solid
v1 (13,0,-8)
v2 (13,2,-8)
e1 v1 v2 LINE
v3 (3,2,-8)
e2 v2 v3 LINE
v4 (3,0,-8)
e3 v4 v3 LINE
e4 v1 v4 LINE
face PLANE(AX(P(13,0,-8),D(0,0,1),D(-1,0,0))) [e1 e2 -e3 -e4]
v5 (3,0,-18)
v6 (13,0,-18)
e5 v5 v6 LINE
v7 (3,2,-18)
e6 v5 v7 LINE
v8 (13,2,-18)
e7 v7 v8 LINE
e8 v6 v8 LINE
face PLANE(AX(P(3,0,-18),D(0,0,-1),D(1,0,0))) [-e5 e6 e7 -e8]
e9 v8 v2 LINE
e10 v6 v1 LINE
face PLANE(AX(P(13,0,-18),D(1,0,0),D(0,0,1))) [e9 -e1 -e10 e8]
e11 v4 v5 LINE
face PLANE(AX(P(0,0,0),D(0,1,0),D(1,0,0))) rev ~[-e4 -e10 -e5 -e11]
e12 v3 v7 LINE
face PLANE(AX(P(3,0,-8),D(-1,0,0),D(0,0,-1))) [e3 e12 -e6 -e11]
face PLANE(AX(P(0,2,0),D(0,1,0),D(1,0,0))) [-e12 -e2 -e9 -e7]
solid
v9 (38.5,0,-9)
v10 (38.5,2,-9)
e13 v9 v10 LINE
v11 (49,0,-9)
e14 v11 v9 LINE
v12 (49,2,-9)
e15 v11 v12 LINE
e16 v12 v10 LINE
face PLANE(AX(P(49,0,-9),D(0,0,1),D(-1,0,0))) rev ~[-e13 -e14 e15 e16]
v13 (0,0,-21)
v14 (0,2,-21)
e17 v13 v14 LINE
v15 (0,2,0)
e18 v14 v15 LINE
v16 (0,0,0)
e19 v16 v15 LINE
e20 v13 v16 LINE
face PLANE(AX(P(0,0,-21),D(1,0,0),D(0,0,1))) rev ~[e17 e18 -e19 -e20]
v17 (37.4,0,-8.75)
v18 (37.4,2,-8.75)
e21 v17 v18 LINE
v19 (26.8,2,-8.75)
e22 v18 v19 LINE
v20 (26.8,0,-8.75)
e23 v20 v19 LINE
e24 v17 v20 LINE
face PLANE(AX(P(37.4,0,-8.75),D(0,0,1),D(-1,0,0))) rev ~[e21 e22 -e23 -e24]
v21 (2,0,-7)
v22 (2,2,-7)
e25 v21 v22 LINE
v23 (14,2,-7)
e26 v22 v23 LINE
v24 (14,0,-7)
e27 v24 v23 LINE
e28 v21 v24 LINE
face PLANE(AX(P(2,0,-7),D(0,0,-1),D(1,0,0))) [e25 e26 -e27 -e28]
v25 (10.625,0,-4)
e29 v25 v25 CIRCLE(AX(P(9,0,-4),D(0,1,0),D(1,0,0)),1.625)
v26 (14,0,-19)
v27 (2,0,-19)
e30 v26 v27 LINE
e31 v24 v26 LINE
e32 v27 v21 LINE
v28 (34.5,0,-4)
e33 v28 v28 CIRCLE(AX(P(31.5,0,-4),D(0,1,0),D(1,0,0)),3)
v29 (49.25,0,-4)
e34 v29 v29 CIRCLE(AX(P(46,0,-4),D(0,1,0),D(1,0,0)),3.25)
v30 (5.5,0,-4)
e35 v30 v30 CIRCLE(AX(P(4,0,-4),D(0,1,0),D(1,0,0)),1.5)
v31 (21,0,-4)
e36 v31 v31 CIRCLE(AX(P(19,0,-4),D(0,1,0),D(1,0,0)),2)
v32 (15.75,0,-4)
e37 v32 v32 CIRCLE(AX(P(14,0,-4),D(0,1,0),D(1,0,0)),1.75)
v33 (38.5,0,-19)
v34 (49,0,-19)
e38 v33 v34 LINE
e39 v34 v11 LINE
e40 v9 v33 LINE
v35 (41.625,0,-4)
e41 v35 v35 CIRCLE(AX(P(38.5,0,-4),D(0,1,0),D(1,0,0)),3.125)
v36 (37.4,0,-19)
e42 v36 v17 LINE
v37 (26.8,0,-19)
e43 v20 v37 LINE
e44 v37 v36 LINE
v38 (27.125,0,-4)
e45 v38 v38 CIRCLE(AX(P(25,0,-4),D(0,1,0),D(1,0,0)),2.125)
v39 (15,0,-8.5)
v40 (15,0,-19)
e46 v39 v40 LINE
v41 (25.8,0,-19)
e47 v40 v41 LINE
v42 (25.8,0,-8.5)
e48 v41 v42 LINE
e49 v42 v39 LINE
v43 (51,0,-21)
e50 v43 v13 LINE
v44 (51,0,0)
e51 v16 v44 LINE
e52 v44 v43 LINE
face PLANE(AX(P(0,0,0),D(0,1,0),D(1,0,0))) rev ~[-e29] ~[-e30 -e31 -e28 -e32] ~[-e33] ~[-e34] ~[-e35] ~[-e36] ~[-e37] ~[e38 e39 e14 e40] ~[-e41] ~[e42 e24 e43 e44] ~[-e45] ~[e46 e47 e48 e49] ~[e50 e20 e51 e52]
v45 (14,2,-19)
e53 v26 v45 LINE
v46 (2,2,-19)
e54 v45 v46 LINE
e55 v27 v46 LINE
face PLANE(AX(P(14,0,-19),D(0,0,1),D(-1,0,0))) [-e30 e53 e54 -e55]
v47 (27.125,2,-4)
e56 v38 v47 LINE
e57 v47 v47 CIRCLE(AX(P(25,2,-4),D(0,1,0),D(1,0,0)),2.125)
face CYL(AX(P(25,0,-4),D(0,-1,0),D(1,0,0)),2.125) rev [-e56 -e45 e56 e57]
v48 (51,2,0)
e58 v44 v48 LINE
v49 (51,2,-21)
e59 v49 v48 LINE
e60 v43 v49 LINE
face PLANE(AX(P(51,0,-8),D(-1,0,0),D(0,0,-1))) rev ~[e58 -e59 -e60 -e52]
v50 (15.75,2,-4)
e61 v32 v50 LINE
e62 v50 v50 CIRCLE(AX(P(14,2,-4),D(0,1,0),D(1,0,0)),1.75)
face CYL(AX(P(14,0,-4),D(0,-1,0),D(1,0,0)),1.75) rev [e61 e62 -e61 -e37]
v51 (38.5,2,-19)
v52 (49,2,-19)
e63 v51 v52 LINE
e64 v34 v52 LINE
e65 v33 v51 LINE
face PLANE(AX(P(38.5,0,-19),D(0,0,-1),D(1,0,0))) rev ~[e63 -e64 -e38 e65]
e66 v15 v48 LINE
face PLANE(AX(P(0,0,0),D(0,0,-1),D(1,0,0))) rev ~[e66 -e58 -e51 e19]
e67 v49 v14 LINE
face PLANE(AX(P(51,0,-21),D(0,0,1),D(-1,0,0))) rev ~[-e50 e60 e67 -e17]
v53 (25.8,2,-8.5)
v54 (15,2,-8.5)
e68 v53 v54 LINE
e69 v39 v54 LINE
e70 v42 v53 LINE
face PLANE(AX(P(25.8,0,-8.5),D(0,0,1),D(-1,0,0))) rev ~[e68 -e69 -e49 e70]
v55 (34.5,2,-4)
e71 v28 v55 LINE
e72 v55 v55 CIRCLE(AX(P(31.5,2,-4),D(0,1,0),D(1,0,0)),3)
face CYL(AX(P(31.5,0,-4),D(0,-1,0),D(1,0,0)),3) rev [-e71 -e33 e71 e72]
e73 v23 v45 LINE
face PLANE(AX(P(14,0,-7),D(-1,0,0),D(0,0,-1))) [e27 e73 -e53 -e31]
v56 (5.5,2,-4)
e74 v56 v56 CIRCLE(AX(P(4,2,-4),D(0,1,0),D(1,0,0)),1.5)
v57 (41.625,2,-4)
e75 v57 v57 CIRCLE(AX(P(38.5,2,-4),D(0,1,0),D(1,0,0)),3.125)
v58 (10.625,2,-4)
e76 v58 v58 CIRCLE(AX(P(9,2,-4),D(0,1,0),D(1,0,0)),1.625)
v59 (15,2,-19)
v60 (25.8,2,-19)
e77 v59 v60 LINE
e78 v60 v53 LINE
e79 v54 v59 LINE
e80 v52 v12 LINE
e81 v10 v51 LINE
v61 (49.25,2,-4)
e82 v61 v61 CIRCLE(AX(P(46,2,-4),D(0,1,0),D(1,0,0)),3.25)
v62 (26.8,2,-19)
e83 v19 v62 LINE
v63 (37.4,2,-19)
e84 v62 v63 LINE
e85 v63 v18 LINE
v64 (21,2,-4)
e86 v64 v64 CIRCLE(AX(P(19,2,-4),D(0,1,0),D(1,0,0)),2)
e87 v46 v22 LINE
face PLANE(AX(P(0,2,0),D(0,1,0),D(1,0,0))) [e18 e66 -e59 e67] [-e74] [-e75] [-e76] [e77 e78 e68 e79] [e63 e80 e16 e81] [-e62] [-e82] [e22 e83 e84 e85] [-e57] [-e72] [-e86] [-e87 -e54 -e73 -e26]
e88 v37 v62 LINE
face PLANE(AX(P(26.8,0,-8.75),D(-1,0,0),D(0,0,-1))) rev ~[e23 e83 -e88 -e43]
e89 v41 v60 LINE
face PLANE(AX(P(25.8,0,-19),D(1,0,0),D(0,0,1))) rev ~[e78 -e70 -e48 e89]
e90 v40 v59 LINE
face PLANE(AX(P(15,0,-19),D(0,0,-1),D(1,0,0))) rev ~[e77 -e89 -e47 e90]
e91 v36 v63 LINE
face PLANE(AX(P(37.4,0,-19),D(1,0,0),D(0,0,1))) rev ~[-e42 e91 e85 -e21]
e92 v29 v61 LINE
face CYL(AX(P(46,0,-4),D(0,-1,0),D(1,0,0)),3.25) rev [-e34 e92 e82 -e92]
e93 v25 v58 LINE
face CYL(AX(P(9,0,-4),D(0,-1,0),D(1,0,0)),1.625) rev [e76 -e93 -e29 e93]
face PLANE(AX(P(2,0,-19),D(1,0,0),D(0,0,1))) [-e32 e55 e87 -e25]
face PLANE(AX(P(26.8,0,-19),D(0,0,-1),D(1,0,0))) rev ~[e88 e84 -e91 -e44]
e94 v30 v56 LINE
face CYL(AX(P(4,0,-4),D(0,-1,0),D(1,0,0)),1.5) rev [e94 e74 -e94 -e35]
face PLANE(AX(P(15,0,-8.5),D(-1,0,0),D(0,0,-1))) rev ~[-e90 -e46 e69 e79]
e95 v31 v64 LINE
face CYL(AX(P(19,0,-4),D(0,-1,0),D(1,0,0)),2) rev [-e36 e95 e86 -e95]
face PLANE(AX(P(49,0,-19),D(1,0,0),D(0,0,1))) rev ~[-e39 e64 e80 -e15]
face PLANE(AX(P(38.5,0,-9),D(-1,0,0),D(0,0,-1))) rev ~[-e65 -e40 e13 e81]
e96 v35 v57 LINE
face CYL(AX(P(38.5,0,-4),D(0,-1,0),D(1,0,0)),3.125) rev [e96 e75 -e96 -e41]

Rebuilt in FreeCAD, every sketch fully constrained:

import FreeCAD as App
import Part
import Sketcher

V = App.Vector
Q = App.Units.Quantity


def add_polygon(sketch, points):
    """Adds a closed chain of lines whose ends are joined by coincident constraints."""
    first, n = sketch.GeometryCount, len(points)
    for a, b in zip(points, points[1:] + points[:1]):
        sketch.addGeometry(Part.LineSegment(App.Vector(*a, 0), App.Vector(*b, 0)), False)
    for i in range(n):
        sketch.addConstraint(Sketcher.Constraint("Coincident", first + i, 2, first + (i + 1) % n, 1))

doc = App.newDocument("Part")
body = doc.addObject("PartDesign::Body", "Body")
body.AllowCompound = True

# Sketch on XZ plane
sketch1 = body.newObject("Sketcher::SketchObject", "Sketch")
sketch1.AttachmentSupport = (doc.getObject("XZ_Plane"), [""])
sketch1.MapMode = "FlatFace"
add_polygon(sketch1, [(51, 0), (51, -21), (0, -21), (0, 0)])  # lines 0-3
sketch1.addGeometry(Part.Circle(V(4, -4, 0), V(0, 0, 1), 1.5), False)  # 4
sketch1.addGeometry(Part.Circle(V(9, -4, 0), V(0, 0, 1), 1.6), False)  # 5
sketch1.addGeometry(Part.Circle(V(14, -4, 0), V(0, 0, 1), 1.8), False)  # 6
sketch1.addGeometry(Part.Circle(V(19, -4, 0), V(0, 0, 1), 2), False)  # 7
sketch1.addGeometry(Part.Circle(V(25, -4, 0), V(0, 0, 1), 2.1), False)  # 8
sketch1.addGeometry(Part.Circle(V(31.5, -4, 0), V(0, 0, 1), 3), False)  # 9
sketch1.addGeometry(Part.Circle(V(38.5, -4, 0), V(0, 0, 1), 3.1), False)  # 10
sketch1.addGeometry(Part.Circle(V(46, -4, 0), V(0, 0, 1), 3.2), False)  # 11
add_polygon(sketch1, [(14, -7), (2, -7), (2, -19), (14, -19)])  # lines 12-15
add_polygon(sketch1, [(15, -8.5), (15, -19), (25.8, -19), (25.8, -8.5)])  # lines 16-19
add_polygon(sketch1, [(26.8, -8.8), (26.8, -19), (37.4, -19), (37.4, -8.8)])  # lines 20-23
add_polygon(sketch1, [(38.5, -9), (38.5, -19), (49, -19), (49, -9)])  # lines 24-27
add_polygon(sketch1, [(13, -18), (3, -18), (3, -8), (13, -8)])  # lines 28-31
sketch1.addConstraint([
    Sketcher.Constraint("Vertical", 0),
    Sketcher.Constraint("Horizontal", 1),
    Sketcher.Constraint("Vertical", 2),
    Sketcher.Constraint("Horizontal", 3),
    Sketcher.Constraint("Horizontal", 12),
    Sketcher.Constraint("Vertical", 13),
    Sketcher.Constraint("Horizontal", 14),
    Sketcher.Constraint("Vertical", 15),
    Sketcher.Constraint("Vertical", 16),
    Sketcher.Constraint("Horizontal", 17),
    Sketcher.Constraint("Vertical", 18),
    Sketcher.Constraint("Horizontal", 19),
    Sketcher.Constraint("Vertical", 20),
    Sketcher.Constraint("Horizontal", 21),
    Sketcher.Constraint("Vertical", 22),
    Sketcher.Constraint("Horizontal", 23),
    Sketcher.Constraint("Vertical", 24),
    Sketcher.Constraint("Horizontal", 25),
    Sketcher.Constraint("Vertical", 26),
    Sketcher.Constraint("Horizontal", 27),
    Sketcher.Constraint("Horizontal", 28),
    Sketcher.Constraint("Vertical", 29),
    Sketcher.Constraint("Horizontal", 30),
    Sketcher.Constraint("Vertical", 31),
    Sketcher.Constraint("Coincident", 2, 2, -1, 1),
    Sketcher.Constraint("Horizontal", 4, 3, 5, 3),
    Sketcher.Constraint("Horizontal", 5, 3, 6, 3),
    Sketcher.Constraint("Horizontal", 6, 3, 7, 3),
    Sketcher.Constraint("Horizontal", 7, 3, 8, 3),
    Sketcher.Constraint("Horizontal", 8, 3, 9, 3),
    Sketcher.Constraint("Horizontal", 9, 3, 10, 3),
    Sketcher.Constraint("Horizontal", 10, 3, 11, 3),
    Sketcher.Constraint("Horizontal", 14, 2, 16, 2),
    Sketcher.Constraint("Horizontal", 17, 2, 20, 2),
    Sketcher.Constraint("Horizontal", 21, 2, 24, 2),
    Sketcher.Constraint("Vertical", 6, 3, 14, 2),
    Sketcher.Constraint("Vertical", 10, 3, 24, 2),
    Sketcher.Constraint("Equal", 14, 13),
    Sketcher.Constraint("Equal", 27, 16),
    Sketcher.Constraint("Equal", 30, 24),
    Sketcher.Constraint("Equal", 26, 29),
    Sketcher.Constraint("Diameter", 4, Q("3 mm")),
    Sketcher.Constraint("Diameter", 7, Q("4 mm")),
    Sketcher.Constraint("Diameter", 9, Q("6 mm")),
    Sketcher.Constraint("Diameter", 6, Q("3.5 mm")),
    Sketcher.Constraint("Diameter", 11, Q("6.5 mm")),
    Sketcher.Constraint("Diameter", 5, Q("3.25 mm")),
    Sketcher.Constraint("Diameter", 8, Q("4.25 mm")),
    Sketcher.Constraint("Diameter", 10, Q("6.25 mm")),
    Sketcher.Constraint("DistanceX", 1, 2, 1, 1, Q("51 mm")),
    Sketcher.Constraint("DistanceX", 12, 2, 12, 1, Q("12 mm")),
    Sketcher.Constraint("DistanceX", 28, 2, 28, 1, Q("10 mm")),
    Sketcher.Constraint("DistanceY", 0, 2, 0, 1, Q("21 mm")),
    Sketcher.Constraint("DistanceX", 17, 1, 17, 2, Q("10.8 mm")),
    Sketcher.Constraint("DistanceX", 21, 1, 21, 2, Q("10.6 mm")),
    Sketcher.Constraint("DistanceX", 25, 1, 25, 2, Q("10.5 mm")),
    Sketcher.Constraint("DistanceX", -1, 1, 4, 3, Q("4 mm")),
    Sketcher.Constraint("DistanceY", 4, 3, -1, 1, Q("4 mm")),
    Sketcher.Constraint("DistanceX", -1, 1, 5, 3, Q("9 mm")),
    Sketcher.Constraint("DistanceX", -1, 1, 6, 3, Q("14 mm")),
    Sketcher.Constraint("DistanceX", -1, 1, 7, 3, Q("19 mm")),
    Sketcher.Constraint("DistanceX", -1, 1, 8, 3, Q("25 mm")),
    Sketcher.Constraint("DistanceX", -1, 1, 11, 3, Q("46 mm")),
    Sketcher.Constraint("DistanceY", 13, 2, -1, 1, Q("19 mm")),
    Sketcher.Constraint("DistanceX", -1, 1, 28, 2, Q("3 mm")),
    Sketcher.Constraint("DistanceX", 14, 2, 16, 2, Q("1 mm")),
    Sketcher.Constraint("DistanceX", 17, 2, 20, 2, Q("1 mm")),
    Sketcher.Constraint("DistanceX", 25, 2, 0, 2, Q("2 mm")),
    Sketcher.Constraint("DistanceY", 13, 2, 28, 2, Q("1 mm")),
    Sketcher.Constraint("DistanceY", 20, 2, 20, 1, Q("10.25 mm")),
    Sketcher.Constraint("DistanceX", -1, 1, 9, 3, Q("31.5 mm")),
])
pad1 = body.newObject("PartDesign::Pad", "Pad")
pad1.Profile = sketch1
pad1.Length = 2
pad1.Reversed = True

doc.recompute()
